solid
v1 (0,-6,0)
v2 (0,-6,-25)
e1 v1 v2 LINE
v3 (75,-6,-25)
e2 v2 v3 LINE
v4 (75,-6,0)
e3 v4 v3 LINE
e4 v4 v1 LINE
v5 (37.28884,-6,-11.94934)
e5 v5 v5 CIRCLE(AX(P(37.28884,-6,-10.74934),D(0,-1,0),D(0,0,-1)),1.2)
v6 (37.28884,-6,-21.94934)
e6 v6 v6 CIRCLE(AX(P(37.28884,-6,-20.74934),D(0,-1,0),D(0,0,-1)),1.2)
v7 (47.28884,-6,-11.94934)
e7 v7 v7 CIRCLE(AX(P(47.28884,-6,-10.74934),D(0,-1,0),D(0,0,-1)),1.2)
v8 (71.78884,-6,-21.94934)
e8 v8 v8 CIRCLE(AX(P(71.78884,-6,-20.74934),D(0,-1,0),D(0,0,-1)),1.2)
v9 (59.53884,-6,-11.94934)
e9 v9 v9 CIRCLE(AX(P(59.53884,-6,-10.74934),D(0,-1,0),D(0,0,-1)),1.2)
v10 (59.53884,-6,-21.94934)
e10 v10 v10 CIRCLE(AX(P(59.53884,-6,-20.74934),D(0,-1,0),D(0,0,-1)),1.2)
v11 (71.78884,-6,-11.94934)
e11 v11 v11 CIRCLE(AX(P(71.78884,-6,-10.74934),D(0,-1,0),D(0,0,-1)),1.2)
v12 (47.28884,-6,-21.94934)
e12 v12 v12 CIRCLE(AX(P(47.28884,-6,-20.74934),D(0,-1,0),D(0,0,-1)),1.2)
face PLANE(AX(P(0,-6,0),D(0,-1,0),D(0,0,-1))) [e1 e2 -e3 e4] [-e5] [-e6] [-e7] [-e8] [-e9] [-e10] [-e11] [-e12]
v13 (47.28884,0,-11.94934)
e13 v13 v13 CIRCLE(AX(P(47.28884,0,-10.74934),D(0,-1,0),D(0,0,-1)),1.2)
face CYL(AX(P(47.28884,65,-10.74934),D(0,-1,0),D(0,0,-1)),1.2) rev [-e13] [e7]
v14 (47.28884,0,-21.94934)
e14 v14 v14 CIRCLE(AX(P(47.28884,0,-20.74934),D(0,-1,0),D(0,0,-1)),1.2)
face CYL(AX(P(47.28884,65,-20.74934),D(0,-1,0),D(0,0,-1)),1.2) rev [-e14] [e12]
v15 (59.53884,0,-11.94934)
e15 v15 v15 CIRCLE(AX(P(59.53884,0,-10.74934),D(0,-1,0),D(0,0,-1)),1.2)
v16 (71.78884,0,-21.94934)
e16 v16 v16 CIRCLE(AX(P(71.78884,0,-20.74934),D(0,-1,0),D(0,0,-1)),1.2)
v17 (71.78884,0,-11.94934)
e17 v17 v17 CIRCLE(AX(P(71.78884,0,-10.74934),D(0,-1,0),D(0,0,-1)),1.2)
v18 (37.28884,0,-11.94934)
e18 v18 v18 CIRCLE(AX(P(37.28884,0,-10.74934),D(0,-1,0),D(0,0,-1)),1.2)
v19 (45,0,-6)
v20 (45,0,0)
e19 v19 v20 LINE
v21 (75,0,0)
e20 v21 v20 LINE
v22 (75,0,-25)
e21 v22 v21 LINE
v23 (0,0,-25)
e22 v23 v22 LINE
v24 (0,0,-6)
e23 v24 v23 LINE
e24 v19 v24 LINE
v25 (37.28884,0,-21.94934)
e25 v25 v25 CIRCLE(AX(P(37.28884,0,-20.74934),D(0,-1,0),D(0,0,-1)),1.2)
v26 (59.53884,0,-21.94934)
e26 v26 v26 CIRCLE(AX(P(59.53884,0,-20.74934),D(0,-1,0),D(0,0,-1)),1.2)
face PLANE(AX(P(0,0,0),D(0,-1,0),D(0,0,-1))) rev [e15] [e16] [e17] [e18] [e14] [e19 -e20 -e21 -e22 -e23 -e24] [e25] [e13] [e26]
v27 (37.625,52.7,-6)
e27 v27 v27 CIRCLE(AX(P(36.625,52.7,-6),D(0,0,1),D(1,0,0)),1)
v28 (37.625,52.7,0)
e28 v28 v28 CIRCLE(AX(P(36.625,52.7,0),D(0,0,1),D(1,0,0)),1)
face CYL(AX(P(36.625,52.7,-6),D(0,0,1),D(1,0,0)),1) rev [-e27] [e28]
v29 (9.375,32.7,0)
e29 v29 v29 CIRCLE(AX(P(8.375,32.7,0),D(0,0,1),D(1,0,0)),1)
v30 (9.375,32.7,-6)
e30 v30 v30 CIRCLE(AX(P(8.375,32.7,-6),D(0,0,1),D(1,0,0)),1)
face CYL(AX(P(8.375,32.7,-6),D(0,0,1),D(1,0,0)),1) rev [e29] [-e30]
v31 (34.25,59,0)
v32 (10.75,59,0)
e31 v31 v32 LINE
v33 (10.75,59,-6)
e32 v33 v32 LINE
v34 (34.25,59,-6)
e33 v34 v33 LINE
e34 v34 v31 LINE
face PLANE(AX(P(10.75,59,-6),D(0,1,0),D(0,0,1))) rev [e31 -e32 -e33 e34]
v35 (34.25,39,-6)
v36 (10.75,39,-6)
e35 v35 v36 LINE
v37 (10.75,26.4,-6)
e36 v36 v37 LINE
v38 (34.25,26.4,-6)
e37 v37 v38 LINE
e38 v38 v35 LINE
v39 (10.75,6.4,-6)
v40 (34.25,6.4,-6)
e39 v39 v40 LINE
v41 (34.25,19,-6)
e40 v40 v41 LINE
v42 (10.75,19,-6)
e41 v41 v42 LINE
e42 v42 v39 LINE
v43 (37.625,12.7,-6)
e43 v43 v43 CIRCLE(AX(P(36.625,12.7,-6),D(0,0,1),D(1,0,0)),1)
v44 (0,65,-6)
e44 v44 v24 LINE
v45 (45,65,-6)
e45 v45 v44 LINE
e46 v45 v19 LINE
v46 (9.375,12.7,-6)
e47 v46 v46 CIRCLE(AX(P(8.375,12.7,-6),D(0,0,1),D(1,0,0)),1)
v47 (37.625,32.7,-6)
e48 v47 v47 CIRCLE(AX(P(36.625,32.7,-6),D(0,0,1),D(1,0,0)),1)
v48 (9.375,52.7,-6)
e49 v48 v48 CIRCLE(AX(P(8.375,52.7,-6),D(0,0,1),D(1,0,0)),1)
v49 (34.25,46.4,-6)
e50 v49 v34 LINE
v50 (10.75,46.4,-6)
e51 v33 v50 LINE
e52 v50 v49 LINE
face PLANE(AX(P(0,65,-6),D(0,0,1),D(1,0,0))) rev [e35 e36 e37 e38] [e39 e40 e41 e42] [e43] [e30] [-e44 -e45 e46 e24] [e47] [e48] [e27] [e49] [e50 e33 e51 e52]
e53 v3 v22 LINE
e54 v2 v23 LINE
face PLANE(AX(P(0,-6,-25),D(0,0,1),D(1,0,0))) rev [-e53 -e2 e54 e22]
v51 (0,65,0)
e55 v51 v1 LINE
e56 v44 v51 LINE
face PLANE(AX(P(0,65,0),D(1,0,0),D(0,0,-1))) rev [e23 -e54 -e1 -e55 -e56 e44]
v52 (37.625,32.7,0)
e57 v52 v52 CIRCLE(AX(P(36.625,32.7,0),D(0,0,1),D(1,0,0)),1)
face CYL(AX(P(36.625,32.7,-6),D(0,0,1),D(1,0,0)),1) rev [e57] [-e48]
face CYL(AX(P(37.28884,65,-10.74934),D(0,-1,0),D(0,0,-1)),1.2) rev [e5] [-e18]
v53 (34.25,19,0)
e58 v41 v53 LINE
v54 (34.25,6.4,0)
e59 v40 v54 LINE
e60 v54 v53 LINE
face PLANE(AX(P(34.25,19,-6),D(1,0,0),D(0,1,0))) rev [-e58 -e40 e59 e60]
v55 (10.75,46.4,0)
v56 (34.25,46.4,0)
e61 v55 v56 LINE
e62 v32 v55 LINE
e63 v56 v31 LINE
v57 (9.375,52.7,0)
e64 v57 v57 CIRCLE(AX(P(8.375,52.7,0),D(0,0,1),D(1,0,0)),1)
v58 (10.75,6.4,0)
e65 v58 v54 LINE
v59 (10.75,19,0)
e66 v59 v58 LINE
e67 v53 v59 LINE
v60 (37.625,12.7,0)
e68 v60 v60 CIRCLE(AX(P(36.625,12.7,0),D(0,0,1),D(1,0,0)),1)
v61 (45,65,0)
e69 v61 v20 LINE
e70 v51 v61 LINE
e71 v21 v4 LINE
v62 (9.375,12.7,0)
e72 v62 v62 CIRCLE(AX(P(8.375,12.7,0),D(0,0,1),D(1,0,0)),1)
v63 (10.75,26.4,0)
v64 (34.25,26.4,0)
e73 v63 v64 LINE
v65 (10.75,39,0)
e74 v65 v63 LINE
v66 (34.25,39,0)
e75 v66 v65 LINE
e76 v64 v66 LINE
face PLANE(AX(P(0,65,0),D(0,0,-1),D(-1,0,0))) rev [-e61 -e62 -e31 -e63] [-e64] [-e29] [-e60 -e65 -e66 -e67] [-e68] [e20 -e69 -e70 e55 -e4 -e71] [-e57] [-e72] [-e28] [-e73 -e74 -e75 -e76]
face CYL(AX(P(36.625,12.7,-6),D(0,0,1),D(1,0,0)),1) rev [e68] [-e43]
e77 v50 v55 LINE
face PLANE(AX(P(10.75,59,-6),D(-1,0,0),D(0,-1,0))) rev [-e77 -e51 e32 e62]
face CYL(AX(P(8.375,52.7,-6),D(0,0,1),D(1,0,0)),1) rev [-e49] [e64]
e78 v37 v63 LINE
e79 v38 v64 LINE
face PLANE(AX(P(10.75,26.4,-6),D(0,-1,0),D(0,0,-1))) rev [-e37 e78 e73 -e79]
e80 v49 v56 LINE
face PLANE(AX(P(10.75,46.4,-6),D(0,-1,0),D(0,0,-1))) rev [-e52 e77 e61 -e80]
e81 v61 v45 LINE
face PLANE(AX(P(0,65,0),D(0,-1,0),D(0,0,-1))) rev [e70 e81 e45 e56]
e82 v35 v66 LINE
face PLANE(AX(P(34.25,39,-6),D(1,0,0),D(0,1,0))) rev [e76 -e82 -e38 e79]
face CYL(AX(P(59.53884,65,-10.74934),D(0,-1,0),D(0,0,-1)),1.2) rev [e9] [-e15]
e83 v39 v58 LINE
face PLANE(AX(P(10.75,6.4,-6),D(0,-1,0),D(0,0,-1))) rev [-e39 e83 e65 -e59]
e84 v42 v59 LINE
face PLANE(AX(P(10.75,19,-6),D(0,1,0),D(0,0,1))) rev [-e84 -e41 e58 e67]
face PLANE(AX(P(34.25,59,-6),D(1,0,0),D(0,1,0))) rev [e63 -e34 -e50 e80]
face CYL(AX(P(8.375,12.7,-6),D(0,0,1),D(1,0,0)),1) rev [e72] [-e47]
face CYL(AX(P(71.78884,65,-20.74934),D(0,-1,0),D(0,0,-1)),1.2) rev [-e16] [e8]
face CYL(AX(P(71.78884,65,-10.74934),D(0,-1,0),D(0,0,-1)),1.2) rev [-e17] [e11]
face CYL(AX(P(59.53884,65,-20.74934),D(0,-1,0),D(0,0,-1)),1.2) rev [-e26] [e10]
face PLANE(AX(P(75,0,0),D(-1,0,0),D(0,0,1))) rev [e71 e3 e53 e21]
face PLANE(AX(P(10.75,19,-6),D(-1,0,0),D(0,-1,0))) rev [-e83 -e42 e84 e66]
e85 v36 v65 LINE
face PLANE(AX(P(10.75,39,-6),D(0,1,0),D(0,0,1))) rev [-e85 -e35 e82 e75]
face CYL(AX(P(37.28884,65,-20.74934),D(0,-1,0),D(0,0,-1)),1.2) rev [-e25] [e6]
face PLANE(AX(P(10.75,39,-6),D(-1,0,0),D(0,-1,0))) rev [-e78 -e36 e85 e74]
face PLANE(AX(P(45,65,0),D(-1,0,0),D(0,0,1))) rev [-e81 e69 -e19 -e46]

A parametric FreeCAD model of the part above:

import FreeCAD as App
import Part
import Sketcher

V = App.Vector
Q = App.Units.Quantity

doc = App.newDocument("Part")
body = doc.addObject("PartDesign::Body", "Body")

# Sketch on XZ plane
sketch1 = body.newObject("Sketcher::SketchObject", "Sketch")
sketch1.AttachmentSupport = (doc.getObject("XZ_Plane"), [""])
sketch1.MapMode = "FlatFace"
sketch1.addGeometry([
    Part.LineSegment(V(0, -6, 0), V(0, 0, 0)),
    Part.LineSegment(V(0, 0, 0), V(45, 0, 0)),
    Part.LineSegment(V(45, 0, 0), V(45, -6, 0)),
    Part.LineSegment(V(45, -6, 0), V(0, -6, 0)),
], False)
sketch1.addConstraint([
    Sketcher.Constraint("Coincident", 0, 2, 1, 1),
    Sketcher.Constraint("Coincident", 1, 2, 2, 1),
    Sketcher.Constraint("Coincident", 2, 2, 3, 1),
    Sketcher.Constraint("Coincident", 3, 2, 0, 1),
    Sketcher.Constraint("Vertical", 0),
    Sketcher.Constraint("Horizontal", 1),
    Sketcher.Constraint("Vertical", 2),
    Sketcher.Constraint("Horizontal", 3),
    Sketcher.Constraint("Coincident", 0, 2, -1, 1),
    Sketcher.Constraint("DistanceX", 1, 1, 1, 2, Q("45 mm")),
    Sketcher.Constraint("DistanceY", 0, 1, 0, 2, Q("6 mm")),
])
pad1 = body.newObject("PartDesign::Pad", "Pad")
pad1.Profile = sketch1
pad1.Length = 65
pad1.Reversed = True

# Sketch on XY plane
sketch2 = body.newObject("Sketcher::SketchObject", "Sketch001")
sketch2.AttachmentSupport = (doc.getObject("XY_Plane"), [""])
sketch2.MapMode = "FlatFace"
sketch2.addGeometry([
    Part.Circle(V(8.4, 52.7, 0), V(0, 0, 1), 1),  # 0
    Part.Circle(V(36.6, 52.7, 0), V(0, 0, 1), 1),  # 1
    Part.LineSegment(V(10.8, 59, 0), V(10.8, 46.4, 0)),  # 2
    Part.LineSegment(V(10.8, 46.4, 0), V(34.2, 46.4, 0)),  # 3
    Part.LineSegment(V(34.2, 46.4, 0), V(34.2, 59, 0)),  # 4
    Part.LineSegment(V(34.2, 59, 0), V(10.8, 59, 0)),  # 5
], False)
sketch2.addConstraint([
    Sketcher.Constraint("Coincident", 2, 2, 3, 1),
    Sketcher.Constraint("Coincident", 3, 2, 4, 1),
    Sketcher.Constraint("Coincident", 4, 2, 5, 1),
    Sketcher.Constraint("Coincident", 5, 2, 2, 1),
    Sketcher.Constraint("Vertical", 2),
    Sketcher.Constraint("Horizontal", 3),
    Sketcher.Constraint("Vertical", 4),
    Sketcher.Constraint("Horizontal", 5),
    Sketcher.Constraint("Equal", 0, 1),
    Sketcher.Constraint("Horizontal", 0, 3, 1, 3),
    Sketcher.Constraint("Diameter", 0, Q("2 mm")),
    Sketcher.Constraint("DistanceX", 3, 1, 3, 2, Q("23.5 mm")),
    Sketcher.Constraint("DistanceY", 2, 2, 2, 1, Q("12.6 mm")),
    Sketcher.Constraint("DistanceY", -1, 1, 4, 2, Q("59 mm")),
    Sketcher.Constraint("DistanceY", -1, 1, 0, 3, Q("52.7 mm")),
    Sketcher.Constraint("DistanceX", -1, 1, 2, 2, Q("10.75 mm")),
    Sketcher.Constraint("DistanceX", 0, 3, 1, 3, Q("28.25 mm")),
    Sketcher.Constraint("DistanceX", -1, 1, 0, 3, Q("8.375 mm")),
])
pocket1 = body.newObject("PartDesign::Pocket", "Pocket")
pocket1.Profile = sketch2
pocket1.Type = "ThroughAll"
doc.recompute()

linearpattern = body.newObject("PartDesign::LinearPattern", "LinearPattern")
linearpattern.Originals = [pocket1]
linearpattern.Direction = (doc.getObject("Y_Axis"), [""])
linearpattern.Mode = "offset"
linearpattern.Offset = 20
linearpattern.Occurrences = 3
linearpattern.Reversed = True
body.Tip = linearpattern

# Sketch on XZ plane
sketch3 = body.newObject("Sketcher::SketchObject", "Sketch002")
sketch3.AttachmentSupport = (doc.getObject("XZ_Plane"), [""])
sketch3.MapMode = "FlatFace"
sketch3.addGeometry([
    Part.LineSegment(V(0, 0, 0), V(0, -25, 0)),
    Part.LineSegment(V(0, -25, 0), V(45, -25, 0)),
    Part.LineSegment(V(45, -25, 0), V(45, 0, 0)),
    Part.LineSegment(V(45, 0, 0), V(0, 0, 0)),
], False)
sketch3.addConstraint([
    Sketcher.Constraint("Coincident", 0, 2, 1, 1),
    Sketcher.Constraint("Coincident", 1, 2, 2, 1),
    Sketcher.Constraint("Coincident", 2, 2, 3, 1),
    Sketcher.Constraint("Coincident", 3, 2, 0, 1),
    Sketcher.Constraint("Vertical", 0),
    Sketcher.Constraint("Horizontal", 1),
    Sketcher.Constraint("Vertical", 2),
    Sketcher.Constraint("Horizontal", 3),
    Sketcher.Constraint("Coincident", 3, 2, -1, 1),
    Sketcher.Constraint("DistanceX", 1, 1, 1, 2, Q("45 mm")),
    Sketcher.Constraint("DistanceY", 0, 2, 0, 1, Q("25 mm")),
])
pad2 = body.newObject("PartDesign::Pad", "Pad001")
pad2.Profile = sketch3
pad2.Length = 6

# Sketch on YZ plane
sketch4 = body.newObject("Sketcher::SketchObject", "Sketch003")
sketch4.AttachmentSupport = (doc.getObject("YZ_Plane"), [""])
sketch4.MapMode = "FlatFace"
sketch4.AttachmentOffset = App.Placement(V(0, 0, 45), App.Rotation())
sketch4.addGeometry([
    Part.LineSegment(V(0, 0, 0), V(-6, 0, 0)),
    Part.LineSegment(V(-6, 0, 0), V(-6, -25, 0)),
    Part.LineSegment(V(-6, -25, 0), V(0, -25, 0)),
    Part.LineSegment(V(0, -25, 0), V(0, 0, 0)),
], False)
sketch4.addConstraint([
    Sketcher.Constraint("Coincident", 0, 2, 1, 1),
    Sketcher.Constraint("Coincident", 1, 2, 2, 1),
    Sketcher.Constraint("Coincident", 2, 2, 3, 1),
    Sketcher.Constraint("Coincident", 3, 2, 0, 1),
    Sketcher.Constraint("Horizontal", 0),
    Sketcher.Constraint("Vertical", 1),
    Sketcher.Constraint("Horizontal", 2),
    Sketcher.Constraint("Vertical", 3),
    Sketcher.Constraint("Coincident", 3, 2, -1, 1),
    Sketcher.Constraint("DistanceX", 0, 2, 0, 1, Q("6 mm")),
    Sketcher.Constraint("DistanceY", 1, 2, 1, 1, Q("25 mm")),
])
pad3 = body.newObject("PartDesign::Pad", "Pad002")
pad3.Profile = sketch4
pad3.Length = 30

# Sketch on XZ plane
sketch5 = body.newObject("Sketcher::SketchObject", "Sketch004")
sketch5.AttachmentSupport = (doc.getObject("XZ_Plane"), [""])
sketch5.MapMode = "FlatFace"
sketch5.AttachmentOffset = App.Placement(V(0, 0, 6), App.Rotation())
sketch5.addGeometry([
    Part.Circle(V(37.3, -20.7, 0), V(0, 0, 1), 1.2),  # 0
    Part.Circle(V(37.3, -10.7, 0), V(0, 0, 1), 1.2),  # 1
    Part.Circle(V(47.3, -20.7, 0), V(0, 0, 1), 1.2),  # 2
    Part.Circle(V(47.3, -10.7, 0), V(0, 0, 1), 1.2),  # 3
    Part.Circle(V(59.5, -20.7, 0), V(0, 0, 1), 1.2),  # 4
    Part.Circle(V(71.8, -20.7, 0), V(0, 0, 1), 1.2),  # 5
    Part.Circle(V(71.8, -10.7, 0), V(0, 0, 1), 1.2),  # 6
    Part.Circle(V(59.5, -10.7, 0), V(0, 0, 1), 1.2),  # 7
], False)
sketch5.addConstraint([
    Sketcher.Constraint("Equal", 0, 1),
    Sketcher.Constraint("Equal", 1, 2),
    Sketcher.Constraint("Equal", 2, 3),
    Sketcher.Constraint("Equal", 3, 4),
    Sketcher.Constraint("Equal", 4, 5),
    Sketcher.Constraint("Equal", 5, 6),
    Sketcher.Constraint("Equal", 6, 7),
    Sketcher.Constraint("Horizontal", 0, 3, 2, 3),
    Sketcher.Constraint("Horizontal", 1, 3, 3, 3),
    Sketcher.Constraint("Horizontal", 2, 3, 4, 3),
    Sketcher.Constraint("Horizontal", 4, 3, 5, 3),
    Sketcher.Constraint("Horizontal", 3, 3, 6, 3),
    Sketcher.Constraint("Horizontal", 6, 3, 7, 3),
    Sketcher.Constraint("Vertical", 0, 3, 1, 3),
    Sketcher.Constraint("Vertical", 2, 3, 3, 3),
    Sketcher.Constraint("Vertical", 5, 3, 6, 3),
    Sketcher.Constraint("Vertical", 4, 3, 7, 3),
    Sketcher.Constraint("Diameter", 0, Q("2.4 mm")),
    Sketcher.Constraint("DistanceY", 0, 3, 1, 3, Q("10 mm")),
    Sketcher.Constraint("DistanceX", 0, 3, 2, 3, Q("10 mm")),
    Sketcher.Constraint("DistanceX", 2, 3, 5, 3, Q("24.5 mm")),
    Sketcher.Constraint("DistanceX", 2, 3, 4, 3, Q("12.25 mm")),
    Sketcher.Constraint("DistanceX", -1, 1, 0, 3, Q("37.28884 mm")),
    Sketcher.Constraint("DistanceY", 0, 3, -1, 1, Q("20.74934 mm")),
])
pocket2 = body.newObject("PartDesign::Pocket", "Pocket001")
pocket2.Profile = sketch5
pocket2.Type = "ThroughAll"

doc.recompute()
